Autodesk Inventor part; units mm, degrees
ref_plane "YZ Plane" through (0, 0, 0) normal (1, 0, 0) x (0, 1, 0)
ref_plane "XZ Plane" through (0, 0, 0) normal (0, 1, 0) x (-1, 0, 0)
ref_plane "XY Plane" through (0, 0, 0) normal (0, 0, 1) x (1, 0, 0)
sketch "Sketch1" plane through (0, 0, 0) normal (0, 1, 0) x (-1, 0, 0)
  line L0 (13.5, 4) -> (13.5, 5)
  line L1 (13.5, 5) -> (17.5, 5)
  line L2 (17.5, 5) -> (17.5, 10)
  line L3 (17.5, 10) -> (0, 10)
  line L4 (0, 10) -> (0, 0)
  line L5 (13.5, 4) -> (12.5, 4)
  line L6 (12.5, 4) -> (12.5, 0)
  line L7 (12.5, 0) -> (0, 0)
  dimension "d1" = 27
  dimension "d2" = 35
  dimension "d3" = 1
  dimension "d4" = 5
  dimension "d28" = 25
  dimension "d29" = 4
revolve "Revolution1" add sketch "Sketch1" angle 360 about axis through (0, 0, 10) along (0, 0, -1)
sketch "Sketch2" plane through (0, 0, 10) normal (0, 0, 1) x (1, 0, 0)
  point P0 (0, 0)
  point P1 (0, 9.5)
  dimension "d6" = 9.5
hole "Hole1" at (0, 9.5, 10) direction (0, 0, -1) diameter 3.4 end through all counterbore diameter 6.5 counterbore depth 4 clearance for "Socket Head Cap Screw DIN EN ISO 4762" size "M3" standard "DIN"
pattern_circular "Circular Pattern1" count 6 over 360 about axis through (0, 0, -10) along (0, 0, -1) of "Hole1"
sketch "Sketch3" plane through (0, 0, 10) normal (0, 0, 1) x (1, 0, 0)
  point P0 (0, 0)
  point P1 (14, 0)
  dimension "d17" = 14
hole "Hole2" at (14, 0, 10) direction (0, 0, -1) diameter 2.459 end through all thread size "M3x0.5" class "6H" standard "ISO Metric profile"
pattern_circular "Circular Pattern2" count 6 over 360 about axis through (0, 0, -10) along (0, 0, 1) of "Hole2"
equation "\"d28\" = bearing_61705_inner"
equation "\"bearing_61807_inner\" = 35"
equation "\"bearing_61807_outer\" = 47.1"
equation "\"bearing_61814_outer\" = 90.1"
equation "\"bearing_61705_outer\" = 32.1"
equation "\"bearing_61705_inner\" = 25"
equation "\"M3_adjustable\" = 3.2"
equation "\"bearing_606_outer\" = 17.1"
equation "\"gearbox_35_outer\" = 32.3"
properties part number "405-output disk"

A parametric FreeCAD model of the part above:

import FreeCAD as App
import Part
import Sketcher


def add_polygon(sketch, points):
    """Adds a closed chain of lines whose ends are joined by coincident constraints."""
    first, n = sketch.GeometryCount, len(points)
    for a, b in zip(points, points[1:] + points[:1]):
        sketch.addGeometry(Part.LineSegment(App.Vector(*a, 0), App.Vector(*b, 0)), False)
    for i in range(n):
        sketch.addConstraint(Sketcher.Constraint("Coincident", first + i, 2, first + (i + 1) % n, 1))

doc = App.newDocument("Part")
params = doc.addObject("Spreadsheet::Sheet", "Params")
for row, (alias, value) in enumerate([
    ("sketch1_width", "1 mm"),
    ("sketch1_width2", "4 mm"),
    ("sketch1_height", "5 mm"),
    ("sketch1_width3", "17.5 mm"),
    ("revolution_angle", "360 deg"),
    ("sketch2_diameter", "3.4 mm"),
    ("hole_diameter", "3.4 mm"),
    ("hole_cbore_diameter", "6.5 mm"),
    ("hole_cbore_depth", "4 mm"),
    ("hole2_diameter", "2.459 mm"),
], start=1):
    params.set(f"A{row}", alias)
    params.set(f"B{row}", "=" + value)
    params.setAlias(f"B{row}", alias)

body = doc.addObject("PartDesign::Body", "Body")

# Sketch on XZ plane
sketch1 = body.newObject("Sketcher::SketchObject", "Sketch")
sketch1.AttachmentSupport = (doc.getObject("XZ_Plane"), [""])
sketch1.MapMode = "FlatFace"
add_polygon(sketch1, [(-12.5, 4), (-13.5, 4), (-13.5, 5), (-17.5, 5), (-17.5, 10), (0, 10), (0, 0), (-12.5, 0)])  # lines 0-7
sketch1.addConstraint([
    Sketcher.Constraint("Horizontal", 0),
    Sketcher.Constraint("Vertical", 1),
    Sketcher.Constraint("Horizontal", 2),
    Sketcher.Constraint("Vertical", 3),
    Sketcher.Constraint("Horizontal", 4),
    Sketcher.Constraint("Vertical", 5),
    Sketcher.Constraint("Horizontal", 6),
    Sketcher.Constraint("Vertical", 7),
    Sketcher.Constraint("Coincident", 5, 2, -1, 1),
    Sketcher.Constraint("Equal", 0, 1),
    Sketcher.Constraint("Equal", 2, 7),
    Sketcher.Constraint("DistanceX", 0, 2, 0, 1, 1.0),
    Sketcher.Constraint("DistanceX", 2, 2, 2, 1, 4.0),
    Sketcher.Constraint("DistanceY", 3, 1, 3, 2, 5.0),
    Sketcher.Constraint("DistanceX", 4, 1, 4, 2, 17.5),
])
sketch1.setExpression("Constraints[19]", "Params.sketch1_width")
sketch1.setExpression("Constraints[20]", "Params.sketch1_width2")
sketch1.setExpression("Constraints[21]", "Params.sketch1_height")
sketch1.setExpression("Constraints[22]", "Params.sketch1_width3")
revolution = body.newObject("PartDesign::Revolution", "Revolution")
revolution.Profile = sketch1
revolution.ReferenceAxis = (sketch1, ["V_Axis"])
revolution.setExpression("Angle", "Params.revolution_angle")

# Sketch on XY plane
sketch2 = body.newObject("Sketcher::SketchObject", "Sketch001")
sketch2.AttachmentSupport = (doc.getObject("XY_Plane"), [""])
sketch2.MapMode = "FlatFace"
sketch2.AttachmentOffset = App.Placement(App.Vector(0, 0, 10), App.Rotation())
sketch2.addGeometry(Part.Circle(App.Vector(0, 9.5, 0), App.Vector(0, 0, 1), 1.7), False)
sketch2.addConstraint([
    Sketcher.Constraint("PointOnObject", 0, 3, -2),
    Sketcher.Constraint("Diameter", 0, 3.4),
    Sketcher.Constraint("DistanceY", -1, 1, 0, 3, 9.5),
])
sketch2.setExpression("Constraints[1]", "Params.sketch2_diameter")
doc.recompute()
hole = body.newObject("PartDesign::Hole", "Hole")
hole.Profile = sketch2
hole.ThreadType = "None"
hole.setExpression("Diameter", "Params.hole_diameter")
hole.DepthType = "ThroughAll"
hole.HoleCutType = "Counterbore"
hole.setExpression("HoleCutDiameter", "Params.hole_cbore_diameter")
hole.setExpression("HoleCutDepth", "Params.hole_cbore_depth")
doc.recompute()

polarpattern = body.newObject("PartDesign::PolarPattern", "PolarPattern")
polarpattern.Originals = [hole]
polarpattern.Axis = (doc.getObject("Z_Axis"), [""])
polarpattern.Angle = 360
polarpattern.Occurrences = 6
body.Tip = polarpattern

# Sketch on XY plane
sketch3 = body.newObject("Sketcher::SketchObject", "Sketch002")
sketch3.AttachmentSupport = (doc.getObject("XY_Plane"), [""])
sketch3.MapMode = "FlatFace"
sketch3.AttachmentOffset = App.Placement(App.Vector(0, 0, 10), App.Rotation())
sketch3.addGeometry(Part.Circle(App.Vector(14, 0, 0), App.Vector(0, 0, 1), 1.2), False)
sketch3.addConstraint([
    Sketcher.Constraint("PointOnObject", 0, 3, -1),
    Sketcher.Constraint("Diameter", 0, 2.459),
    Sketcher.Constraint("DistanceX", -1, 1, 0, 3, 14.0),
])
doc.recompute()
hole2 = body.newObject("PartDesign::Hole", "Hole001")
hole2.Profile = sketch3
hole2.ThreadType = "None"
hole2.setExpression("Diameter", "Params.hole2_diameter")
hole2.DepthType = "ThroughAll"
doc.recompute()

polarpattern2 = body.newObject("PartDesign::PolarPattern", "PolarPattern001")
polarpattern2.Originals = [hole2]
polarpattern2.Axis = (doc.getObject("Z_Axis"), [""])
polarpattern2.Angle = 360
polarpattern2.Occurrences = 6
body.Tip = polarpattern2

doc.recompute()
